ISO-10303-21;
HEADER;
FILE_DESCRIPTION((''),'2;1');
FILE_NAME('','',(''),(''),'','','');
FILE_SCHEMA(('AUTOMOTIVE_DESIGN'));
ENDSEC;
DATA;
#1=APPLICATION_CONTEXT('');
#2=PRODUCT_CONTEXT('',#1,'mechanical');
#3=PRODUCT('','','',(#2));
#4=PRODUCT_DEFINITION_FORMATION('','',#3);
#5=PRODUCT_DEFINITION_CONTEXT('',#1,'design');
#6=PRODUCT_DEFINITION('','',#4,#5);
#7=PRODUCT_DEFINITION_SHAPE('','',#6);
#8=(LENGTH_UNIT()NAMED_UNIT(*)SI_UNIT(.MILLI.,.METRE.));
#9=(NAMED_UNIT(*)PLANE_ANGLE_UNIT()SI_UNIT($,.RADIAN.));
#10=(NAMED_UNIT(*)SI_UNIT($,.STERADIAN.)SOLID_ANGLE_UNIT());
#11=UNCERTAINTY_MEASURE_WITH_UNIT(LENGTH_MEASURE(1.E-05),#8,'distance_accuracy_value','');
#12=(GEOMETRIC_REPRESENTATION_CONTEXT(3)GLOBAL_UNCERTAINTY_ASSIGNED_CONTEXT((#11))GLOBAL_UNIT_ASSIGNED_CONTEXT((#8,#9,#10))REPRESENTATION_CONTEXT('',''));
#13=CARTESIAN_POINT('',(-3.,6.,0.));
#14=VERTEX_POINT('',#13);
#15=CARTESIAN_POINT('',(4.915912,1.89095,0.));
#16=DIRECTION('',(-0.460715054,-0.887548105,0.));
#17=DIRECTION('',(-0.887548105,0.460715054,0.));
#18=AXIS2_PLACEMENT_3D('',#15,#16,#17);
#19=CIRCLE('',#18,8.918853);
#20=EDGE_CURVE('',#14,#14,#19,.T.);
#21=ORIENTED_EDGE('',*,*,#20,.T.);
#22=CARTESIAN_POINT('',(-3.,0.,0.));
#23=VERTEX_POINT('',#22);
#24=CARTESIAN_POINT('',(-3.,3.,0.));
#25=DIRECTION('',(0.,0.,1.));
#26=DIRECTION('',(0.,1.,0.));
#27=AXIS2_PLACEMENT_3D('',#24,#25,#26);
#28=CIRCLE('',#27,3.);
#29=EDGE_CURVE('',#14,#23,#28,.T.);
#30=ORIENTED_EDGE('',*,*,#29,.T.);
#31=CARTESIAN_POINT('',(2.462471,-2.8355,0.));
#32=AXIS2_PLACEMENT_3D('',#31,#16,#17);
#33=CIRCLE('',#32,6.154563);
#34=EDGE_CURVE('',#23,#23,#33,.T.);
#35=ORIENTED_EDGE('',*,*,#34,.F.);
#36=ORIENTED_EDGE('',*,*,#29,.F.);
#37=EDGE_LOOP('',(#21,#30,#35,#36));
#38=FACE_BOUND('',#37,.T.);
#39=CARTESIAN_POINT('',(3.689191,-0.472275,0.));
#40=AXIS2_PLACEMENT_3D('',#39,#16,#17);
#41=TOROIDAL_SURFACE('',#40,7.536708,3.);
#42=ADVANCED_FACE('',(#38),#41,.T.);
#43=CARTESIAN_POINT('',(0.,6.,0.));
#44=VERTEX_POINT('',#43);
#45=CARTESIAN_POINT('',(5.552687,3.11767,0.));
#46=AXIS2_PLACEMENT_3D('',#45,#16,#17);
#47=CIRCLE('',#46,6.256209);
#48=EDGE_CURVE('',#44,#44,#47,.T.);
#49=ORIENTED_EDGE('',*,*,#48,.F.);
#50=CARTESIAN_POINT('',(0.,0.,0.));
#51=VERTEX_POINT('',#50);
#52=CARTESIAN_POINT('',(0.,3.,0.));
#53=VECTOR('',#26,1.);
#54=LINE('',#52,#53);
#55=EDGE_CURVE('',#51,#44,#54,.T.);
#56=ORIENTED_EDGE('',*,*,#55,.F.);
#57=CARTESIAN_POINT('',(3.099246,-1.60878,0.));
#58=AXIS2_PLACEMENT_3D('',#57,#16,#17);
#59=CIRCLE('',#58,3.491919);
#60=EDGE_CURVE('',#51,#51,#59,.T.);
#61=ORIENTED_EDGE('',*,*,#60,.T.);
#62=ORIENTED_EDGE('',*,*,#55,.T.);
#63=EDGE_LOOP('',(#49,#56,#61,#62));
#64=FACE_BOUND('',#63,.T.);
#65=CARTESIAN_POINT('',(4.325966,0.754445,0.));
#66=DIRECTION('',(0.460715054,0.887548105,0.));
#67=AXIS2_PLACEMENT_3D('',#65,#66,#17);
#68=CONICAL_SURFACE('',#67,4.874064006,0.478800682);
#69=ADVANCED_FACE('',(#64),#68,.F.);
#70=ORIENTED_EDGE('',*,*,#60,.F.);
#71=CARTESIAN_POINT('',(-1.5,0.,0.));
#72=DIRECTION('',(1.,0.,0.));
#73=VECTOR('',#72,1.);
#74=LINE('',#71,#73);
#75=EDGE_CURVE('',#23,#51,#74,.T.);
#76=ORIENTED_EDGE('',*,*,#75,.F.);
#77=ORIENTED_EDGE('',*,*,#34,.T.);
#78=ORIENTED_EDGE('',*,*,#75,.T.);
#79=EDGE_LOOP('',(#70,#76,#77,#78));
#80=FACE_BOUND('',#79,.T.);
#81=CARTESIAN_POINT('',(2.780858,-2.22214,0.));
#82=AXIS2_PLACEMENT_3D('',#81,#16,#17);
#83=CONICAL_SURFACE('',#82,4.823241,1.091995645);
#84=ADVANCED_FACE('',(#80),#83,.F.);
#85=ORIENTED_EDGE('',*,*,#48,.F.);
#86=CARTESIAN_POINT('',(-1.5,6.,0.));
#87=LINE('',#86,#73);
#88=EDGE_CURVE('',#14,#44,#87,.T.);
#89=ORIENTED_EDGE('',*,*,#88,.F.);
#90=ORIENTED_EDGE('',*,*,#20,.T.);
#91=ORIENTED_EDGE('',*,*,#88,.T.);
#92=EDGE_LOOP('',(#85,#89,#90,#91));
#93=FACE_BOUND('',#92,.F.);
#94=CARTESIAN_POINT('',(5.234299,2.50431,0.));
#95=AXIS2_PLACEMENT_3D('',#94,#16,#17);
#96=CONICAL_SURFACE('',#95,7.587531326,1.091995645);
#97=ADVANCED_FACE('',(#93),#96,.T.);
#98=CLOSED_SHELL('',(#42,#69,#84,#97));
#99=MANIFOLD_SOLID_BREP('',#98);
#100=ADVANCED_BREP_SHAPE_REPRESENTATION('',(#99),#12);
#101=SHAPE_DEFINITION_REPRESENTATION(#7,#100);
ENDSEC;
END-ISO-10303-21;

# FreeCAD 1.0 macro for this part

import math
import FreeCAD as App
import Part
import Sketcher

doc = App.newDocument("Part")
body = doc.addObject("PartDesign::Body", "Body")

sketch1 = body.newObject("Sketcher::SketchObject", "Sketch")
sketch1.AttachmentSupport = (doc.getObject("XY_Plane"), [""])
sketch1.MapMode = "FlatFace"
sketch1.addGeometry([
    Part.ArcOfCircle(Part.Circle(App.Vector(-3, 3, 0), App.Vector(0, 0, 1), 3), math.radians(90), math.radians(270)),
    Part.LineSegment(App.Vector(-3, 0, 0), App.Vector(0, 0, 0)),
    Part.LineSegment(App.Vector(0, 0, 0), App.Vector(0, 6, 0)),
    Part.LineSegment(App.Vector(0, 6, 0), App.Vector(-3, 6, 0)),
], False)
sketch1.addGeometry(Part.LineSegment(App.Vector(5.6, 3.1, 0), App.Vector(2.5, -2.8, 0)), True)
sketch1.addConstraint([
    Sketcher.Constraint("Tangent", 0, 2, 1, 1),
    Sketcher.Constraint("Coincident", 1, 2, 2, 1),
    Sketcher.Constraint("Coincident", 2, 2, 3, 1),
    Sketcher.Constraint("Tangent", 3, 2, 0, 1),
    Sketcher.Constraint("Horizontal", 1),
    Sketcher.Constraint("Vertical", 2),
    Sketcher.Constraint("Horizontal", 3),
    Sketcher.Constraint("Coincident", 1, 2, -1, 1),
    Sketcher.Constraint("Radius", 0, 3.0),
    Sketcher.Constraint("DistanceX", 1, 1, 1, 2, 3.0),
    Sketcher.Constraint("DistanceY", 4, 2, -1, 1, 2.8355),
    Sketcher.Constraint("DistanceY", -1, 1, 4, 1, 3.11767),
    Sketcher.Constraint("DistanceX", -1, 1, 4, 2, 2.462471),
    Sketcher.Constraint("Distance", 4, 6.707434),
])
revolution = body.newObject("PartDesign::Revolution", "Revolution")
revolution.Profile = sketch1
revolution.ReferenceAxis = (sketch1, ["Axis0"])
revolution.Angle = 360

doc.recompute()
